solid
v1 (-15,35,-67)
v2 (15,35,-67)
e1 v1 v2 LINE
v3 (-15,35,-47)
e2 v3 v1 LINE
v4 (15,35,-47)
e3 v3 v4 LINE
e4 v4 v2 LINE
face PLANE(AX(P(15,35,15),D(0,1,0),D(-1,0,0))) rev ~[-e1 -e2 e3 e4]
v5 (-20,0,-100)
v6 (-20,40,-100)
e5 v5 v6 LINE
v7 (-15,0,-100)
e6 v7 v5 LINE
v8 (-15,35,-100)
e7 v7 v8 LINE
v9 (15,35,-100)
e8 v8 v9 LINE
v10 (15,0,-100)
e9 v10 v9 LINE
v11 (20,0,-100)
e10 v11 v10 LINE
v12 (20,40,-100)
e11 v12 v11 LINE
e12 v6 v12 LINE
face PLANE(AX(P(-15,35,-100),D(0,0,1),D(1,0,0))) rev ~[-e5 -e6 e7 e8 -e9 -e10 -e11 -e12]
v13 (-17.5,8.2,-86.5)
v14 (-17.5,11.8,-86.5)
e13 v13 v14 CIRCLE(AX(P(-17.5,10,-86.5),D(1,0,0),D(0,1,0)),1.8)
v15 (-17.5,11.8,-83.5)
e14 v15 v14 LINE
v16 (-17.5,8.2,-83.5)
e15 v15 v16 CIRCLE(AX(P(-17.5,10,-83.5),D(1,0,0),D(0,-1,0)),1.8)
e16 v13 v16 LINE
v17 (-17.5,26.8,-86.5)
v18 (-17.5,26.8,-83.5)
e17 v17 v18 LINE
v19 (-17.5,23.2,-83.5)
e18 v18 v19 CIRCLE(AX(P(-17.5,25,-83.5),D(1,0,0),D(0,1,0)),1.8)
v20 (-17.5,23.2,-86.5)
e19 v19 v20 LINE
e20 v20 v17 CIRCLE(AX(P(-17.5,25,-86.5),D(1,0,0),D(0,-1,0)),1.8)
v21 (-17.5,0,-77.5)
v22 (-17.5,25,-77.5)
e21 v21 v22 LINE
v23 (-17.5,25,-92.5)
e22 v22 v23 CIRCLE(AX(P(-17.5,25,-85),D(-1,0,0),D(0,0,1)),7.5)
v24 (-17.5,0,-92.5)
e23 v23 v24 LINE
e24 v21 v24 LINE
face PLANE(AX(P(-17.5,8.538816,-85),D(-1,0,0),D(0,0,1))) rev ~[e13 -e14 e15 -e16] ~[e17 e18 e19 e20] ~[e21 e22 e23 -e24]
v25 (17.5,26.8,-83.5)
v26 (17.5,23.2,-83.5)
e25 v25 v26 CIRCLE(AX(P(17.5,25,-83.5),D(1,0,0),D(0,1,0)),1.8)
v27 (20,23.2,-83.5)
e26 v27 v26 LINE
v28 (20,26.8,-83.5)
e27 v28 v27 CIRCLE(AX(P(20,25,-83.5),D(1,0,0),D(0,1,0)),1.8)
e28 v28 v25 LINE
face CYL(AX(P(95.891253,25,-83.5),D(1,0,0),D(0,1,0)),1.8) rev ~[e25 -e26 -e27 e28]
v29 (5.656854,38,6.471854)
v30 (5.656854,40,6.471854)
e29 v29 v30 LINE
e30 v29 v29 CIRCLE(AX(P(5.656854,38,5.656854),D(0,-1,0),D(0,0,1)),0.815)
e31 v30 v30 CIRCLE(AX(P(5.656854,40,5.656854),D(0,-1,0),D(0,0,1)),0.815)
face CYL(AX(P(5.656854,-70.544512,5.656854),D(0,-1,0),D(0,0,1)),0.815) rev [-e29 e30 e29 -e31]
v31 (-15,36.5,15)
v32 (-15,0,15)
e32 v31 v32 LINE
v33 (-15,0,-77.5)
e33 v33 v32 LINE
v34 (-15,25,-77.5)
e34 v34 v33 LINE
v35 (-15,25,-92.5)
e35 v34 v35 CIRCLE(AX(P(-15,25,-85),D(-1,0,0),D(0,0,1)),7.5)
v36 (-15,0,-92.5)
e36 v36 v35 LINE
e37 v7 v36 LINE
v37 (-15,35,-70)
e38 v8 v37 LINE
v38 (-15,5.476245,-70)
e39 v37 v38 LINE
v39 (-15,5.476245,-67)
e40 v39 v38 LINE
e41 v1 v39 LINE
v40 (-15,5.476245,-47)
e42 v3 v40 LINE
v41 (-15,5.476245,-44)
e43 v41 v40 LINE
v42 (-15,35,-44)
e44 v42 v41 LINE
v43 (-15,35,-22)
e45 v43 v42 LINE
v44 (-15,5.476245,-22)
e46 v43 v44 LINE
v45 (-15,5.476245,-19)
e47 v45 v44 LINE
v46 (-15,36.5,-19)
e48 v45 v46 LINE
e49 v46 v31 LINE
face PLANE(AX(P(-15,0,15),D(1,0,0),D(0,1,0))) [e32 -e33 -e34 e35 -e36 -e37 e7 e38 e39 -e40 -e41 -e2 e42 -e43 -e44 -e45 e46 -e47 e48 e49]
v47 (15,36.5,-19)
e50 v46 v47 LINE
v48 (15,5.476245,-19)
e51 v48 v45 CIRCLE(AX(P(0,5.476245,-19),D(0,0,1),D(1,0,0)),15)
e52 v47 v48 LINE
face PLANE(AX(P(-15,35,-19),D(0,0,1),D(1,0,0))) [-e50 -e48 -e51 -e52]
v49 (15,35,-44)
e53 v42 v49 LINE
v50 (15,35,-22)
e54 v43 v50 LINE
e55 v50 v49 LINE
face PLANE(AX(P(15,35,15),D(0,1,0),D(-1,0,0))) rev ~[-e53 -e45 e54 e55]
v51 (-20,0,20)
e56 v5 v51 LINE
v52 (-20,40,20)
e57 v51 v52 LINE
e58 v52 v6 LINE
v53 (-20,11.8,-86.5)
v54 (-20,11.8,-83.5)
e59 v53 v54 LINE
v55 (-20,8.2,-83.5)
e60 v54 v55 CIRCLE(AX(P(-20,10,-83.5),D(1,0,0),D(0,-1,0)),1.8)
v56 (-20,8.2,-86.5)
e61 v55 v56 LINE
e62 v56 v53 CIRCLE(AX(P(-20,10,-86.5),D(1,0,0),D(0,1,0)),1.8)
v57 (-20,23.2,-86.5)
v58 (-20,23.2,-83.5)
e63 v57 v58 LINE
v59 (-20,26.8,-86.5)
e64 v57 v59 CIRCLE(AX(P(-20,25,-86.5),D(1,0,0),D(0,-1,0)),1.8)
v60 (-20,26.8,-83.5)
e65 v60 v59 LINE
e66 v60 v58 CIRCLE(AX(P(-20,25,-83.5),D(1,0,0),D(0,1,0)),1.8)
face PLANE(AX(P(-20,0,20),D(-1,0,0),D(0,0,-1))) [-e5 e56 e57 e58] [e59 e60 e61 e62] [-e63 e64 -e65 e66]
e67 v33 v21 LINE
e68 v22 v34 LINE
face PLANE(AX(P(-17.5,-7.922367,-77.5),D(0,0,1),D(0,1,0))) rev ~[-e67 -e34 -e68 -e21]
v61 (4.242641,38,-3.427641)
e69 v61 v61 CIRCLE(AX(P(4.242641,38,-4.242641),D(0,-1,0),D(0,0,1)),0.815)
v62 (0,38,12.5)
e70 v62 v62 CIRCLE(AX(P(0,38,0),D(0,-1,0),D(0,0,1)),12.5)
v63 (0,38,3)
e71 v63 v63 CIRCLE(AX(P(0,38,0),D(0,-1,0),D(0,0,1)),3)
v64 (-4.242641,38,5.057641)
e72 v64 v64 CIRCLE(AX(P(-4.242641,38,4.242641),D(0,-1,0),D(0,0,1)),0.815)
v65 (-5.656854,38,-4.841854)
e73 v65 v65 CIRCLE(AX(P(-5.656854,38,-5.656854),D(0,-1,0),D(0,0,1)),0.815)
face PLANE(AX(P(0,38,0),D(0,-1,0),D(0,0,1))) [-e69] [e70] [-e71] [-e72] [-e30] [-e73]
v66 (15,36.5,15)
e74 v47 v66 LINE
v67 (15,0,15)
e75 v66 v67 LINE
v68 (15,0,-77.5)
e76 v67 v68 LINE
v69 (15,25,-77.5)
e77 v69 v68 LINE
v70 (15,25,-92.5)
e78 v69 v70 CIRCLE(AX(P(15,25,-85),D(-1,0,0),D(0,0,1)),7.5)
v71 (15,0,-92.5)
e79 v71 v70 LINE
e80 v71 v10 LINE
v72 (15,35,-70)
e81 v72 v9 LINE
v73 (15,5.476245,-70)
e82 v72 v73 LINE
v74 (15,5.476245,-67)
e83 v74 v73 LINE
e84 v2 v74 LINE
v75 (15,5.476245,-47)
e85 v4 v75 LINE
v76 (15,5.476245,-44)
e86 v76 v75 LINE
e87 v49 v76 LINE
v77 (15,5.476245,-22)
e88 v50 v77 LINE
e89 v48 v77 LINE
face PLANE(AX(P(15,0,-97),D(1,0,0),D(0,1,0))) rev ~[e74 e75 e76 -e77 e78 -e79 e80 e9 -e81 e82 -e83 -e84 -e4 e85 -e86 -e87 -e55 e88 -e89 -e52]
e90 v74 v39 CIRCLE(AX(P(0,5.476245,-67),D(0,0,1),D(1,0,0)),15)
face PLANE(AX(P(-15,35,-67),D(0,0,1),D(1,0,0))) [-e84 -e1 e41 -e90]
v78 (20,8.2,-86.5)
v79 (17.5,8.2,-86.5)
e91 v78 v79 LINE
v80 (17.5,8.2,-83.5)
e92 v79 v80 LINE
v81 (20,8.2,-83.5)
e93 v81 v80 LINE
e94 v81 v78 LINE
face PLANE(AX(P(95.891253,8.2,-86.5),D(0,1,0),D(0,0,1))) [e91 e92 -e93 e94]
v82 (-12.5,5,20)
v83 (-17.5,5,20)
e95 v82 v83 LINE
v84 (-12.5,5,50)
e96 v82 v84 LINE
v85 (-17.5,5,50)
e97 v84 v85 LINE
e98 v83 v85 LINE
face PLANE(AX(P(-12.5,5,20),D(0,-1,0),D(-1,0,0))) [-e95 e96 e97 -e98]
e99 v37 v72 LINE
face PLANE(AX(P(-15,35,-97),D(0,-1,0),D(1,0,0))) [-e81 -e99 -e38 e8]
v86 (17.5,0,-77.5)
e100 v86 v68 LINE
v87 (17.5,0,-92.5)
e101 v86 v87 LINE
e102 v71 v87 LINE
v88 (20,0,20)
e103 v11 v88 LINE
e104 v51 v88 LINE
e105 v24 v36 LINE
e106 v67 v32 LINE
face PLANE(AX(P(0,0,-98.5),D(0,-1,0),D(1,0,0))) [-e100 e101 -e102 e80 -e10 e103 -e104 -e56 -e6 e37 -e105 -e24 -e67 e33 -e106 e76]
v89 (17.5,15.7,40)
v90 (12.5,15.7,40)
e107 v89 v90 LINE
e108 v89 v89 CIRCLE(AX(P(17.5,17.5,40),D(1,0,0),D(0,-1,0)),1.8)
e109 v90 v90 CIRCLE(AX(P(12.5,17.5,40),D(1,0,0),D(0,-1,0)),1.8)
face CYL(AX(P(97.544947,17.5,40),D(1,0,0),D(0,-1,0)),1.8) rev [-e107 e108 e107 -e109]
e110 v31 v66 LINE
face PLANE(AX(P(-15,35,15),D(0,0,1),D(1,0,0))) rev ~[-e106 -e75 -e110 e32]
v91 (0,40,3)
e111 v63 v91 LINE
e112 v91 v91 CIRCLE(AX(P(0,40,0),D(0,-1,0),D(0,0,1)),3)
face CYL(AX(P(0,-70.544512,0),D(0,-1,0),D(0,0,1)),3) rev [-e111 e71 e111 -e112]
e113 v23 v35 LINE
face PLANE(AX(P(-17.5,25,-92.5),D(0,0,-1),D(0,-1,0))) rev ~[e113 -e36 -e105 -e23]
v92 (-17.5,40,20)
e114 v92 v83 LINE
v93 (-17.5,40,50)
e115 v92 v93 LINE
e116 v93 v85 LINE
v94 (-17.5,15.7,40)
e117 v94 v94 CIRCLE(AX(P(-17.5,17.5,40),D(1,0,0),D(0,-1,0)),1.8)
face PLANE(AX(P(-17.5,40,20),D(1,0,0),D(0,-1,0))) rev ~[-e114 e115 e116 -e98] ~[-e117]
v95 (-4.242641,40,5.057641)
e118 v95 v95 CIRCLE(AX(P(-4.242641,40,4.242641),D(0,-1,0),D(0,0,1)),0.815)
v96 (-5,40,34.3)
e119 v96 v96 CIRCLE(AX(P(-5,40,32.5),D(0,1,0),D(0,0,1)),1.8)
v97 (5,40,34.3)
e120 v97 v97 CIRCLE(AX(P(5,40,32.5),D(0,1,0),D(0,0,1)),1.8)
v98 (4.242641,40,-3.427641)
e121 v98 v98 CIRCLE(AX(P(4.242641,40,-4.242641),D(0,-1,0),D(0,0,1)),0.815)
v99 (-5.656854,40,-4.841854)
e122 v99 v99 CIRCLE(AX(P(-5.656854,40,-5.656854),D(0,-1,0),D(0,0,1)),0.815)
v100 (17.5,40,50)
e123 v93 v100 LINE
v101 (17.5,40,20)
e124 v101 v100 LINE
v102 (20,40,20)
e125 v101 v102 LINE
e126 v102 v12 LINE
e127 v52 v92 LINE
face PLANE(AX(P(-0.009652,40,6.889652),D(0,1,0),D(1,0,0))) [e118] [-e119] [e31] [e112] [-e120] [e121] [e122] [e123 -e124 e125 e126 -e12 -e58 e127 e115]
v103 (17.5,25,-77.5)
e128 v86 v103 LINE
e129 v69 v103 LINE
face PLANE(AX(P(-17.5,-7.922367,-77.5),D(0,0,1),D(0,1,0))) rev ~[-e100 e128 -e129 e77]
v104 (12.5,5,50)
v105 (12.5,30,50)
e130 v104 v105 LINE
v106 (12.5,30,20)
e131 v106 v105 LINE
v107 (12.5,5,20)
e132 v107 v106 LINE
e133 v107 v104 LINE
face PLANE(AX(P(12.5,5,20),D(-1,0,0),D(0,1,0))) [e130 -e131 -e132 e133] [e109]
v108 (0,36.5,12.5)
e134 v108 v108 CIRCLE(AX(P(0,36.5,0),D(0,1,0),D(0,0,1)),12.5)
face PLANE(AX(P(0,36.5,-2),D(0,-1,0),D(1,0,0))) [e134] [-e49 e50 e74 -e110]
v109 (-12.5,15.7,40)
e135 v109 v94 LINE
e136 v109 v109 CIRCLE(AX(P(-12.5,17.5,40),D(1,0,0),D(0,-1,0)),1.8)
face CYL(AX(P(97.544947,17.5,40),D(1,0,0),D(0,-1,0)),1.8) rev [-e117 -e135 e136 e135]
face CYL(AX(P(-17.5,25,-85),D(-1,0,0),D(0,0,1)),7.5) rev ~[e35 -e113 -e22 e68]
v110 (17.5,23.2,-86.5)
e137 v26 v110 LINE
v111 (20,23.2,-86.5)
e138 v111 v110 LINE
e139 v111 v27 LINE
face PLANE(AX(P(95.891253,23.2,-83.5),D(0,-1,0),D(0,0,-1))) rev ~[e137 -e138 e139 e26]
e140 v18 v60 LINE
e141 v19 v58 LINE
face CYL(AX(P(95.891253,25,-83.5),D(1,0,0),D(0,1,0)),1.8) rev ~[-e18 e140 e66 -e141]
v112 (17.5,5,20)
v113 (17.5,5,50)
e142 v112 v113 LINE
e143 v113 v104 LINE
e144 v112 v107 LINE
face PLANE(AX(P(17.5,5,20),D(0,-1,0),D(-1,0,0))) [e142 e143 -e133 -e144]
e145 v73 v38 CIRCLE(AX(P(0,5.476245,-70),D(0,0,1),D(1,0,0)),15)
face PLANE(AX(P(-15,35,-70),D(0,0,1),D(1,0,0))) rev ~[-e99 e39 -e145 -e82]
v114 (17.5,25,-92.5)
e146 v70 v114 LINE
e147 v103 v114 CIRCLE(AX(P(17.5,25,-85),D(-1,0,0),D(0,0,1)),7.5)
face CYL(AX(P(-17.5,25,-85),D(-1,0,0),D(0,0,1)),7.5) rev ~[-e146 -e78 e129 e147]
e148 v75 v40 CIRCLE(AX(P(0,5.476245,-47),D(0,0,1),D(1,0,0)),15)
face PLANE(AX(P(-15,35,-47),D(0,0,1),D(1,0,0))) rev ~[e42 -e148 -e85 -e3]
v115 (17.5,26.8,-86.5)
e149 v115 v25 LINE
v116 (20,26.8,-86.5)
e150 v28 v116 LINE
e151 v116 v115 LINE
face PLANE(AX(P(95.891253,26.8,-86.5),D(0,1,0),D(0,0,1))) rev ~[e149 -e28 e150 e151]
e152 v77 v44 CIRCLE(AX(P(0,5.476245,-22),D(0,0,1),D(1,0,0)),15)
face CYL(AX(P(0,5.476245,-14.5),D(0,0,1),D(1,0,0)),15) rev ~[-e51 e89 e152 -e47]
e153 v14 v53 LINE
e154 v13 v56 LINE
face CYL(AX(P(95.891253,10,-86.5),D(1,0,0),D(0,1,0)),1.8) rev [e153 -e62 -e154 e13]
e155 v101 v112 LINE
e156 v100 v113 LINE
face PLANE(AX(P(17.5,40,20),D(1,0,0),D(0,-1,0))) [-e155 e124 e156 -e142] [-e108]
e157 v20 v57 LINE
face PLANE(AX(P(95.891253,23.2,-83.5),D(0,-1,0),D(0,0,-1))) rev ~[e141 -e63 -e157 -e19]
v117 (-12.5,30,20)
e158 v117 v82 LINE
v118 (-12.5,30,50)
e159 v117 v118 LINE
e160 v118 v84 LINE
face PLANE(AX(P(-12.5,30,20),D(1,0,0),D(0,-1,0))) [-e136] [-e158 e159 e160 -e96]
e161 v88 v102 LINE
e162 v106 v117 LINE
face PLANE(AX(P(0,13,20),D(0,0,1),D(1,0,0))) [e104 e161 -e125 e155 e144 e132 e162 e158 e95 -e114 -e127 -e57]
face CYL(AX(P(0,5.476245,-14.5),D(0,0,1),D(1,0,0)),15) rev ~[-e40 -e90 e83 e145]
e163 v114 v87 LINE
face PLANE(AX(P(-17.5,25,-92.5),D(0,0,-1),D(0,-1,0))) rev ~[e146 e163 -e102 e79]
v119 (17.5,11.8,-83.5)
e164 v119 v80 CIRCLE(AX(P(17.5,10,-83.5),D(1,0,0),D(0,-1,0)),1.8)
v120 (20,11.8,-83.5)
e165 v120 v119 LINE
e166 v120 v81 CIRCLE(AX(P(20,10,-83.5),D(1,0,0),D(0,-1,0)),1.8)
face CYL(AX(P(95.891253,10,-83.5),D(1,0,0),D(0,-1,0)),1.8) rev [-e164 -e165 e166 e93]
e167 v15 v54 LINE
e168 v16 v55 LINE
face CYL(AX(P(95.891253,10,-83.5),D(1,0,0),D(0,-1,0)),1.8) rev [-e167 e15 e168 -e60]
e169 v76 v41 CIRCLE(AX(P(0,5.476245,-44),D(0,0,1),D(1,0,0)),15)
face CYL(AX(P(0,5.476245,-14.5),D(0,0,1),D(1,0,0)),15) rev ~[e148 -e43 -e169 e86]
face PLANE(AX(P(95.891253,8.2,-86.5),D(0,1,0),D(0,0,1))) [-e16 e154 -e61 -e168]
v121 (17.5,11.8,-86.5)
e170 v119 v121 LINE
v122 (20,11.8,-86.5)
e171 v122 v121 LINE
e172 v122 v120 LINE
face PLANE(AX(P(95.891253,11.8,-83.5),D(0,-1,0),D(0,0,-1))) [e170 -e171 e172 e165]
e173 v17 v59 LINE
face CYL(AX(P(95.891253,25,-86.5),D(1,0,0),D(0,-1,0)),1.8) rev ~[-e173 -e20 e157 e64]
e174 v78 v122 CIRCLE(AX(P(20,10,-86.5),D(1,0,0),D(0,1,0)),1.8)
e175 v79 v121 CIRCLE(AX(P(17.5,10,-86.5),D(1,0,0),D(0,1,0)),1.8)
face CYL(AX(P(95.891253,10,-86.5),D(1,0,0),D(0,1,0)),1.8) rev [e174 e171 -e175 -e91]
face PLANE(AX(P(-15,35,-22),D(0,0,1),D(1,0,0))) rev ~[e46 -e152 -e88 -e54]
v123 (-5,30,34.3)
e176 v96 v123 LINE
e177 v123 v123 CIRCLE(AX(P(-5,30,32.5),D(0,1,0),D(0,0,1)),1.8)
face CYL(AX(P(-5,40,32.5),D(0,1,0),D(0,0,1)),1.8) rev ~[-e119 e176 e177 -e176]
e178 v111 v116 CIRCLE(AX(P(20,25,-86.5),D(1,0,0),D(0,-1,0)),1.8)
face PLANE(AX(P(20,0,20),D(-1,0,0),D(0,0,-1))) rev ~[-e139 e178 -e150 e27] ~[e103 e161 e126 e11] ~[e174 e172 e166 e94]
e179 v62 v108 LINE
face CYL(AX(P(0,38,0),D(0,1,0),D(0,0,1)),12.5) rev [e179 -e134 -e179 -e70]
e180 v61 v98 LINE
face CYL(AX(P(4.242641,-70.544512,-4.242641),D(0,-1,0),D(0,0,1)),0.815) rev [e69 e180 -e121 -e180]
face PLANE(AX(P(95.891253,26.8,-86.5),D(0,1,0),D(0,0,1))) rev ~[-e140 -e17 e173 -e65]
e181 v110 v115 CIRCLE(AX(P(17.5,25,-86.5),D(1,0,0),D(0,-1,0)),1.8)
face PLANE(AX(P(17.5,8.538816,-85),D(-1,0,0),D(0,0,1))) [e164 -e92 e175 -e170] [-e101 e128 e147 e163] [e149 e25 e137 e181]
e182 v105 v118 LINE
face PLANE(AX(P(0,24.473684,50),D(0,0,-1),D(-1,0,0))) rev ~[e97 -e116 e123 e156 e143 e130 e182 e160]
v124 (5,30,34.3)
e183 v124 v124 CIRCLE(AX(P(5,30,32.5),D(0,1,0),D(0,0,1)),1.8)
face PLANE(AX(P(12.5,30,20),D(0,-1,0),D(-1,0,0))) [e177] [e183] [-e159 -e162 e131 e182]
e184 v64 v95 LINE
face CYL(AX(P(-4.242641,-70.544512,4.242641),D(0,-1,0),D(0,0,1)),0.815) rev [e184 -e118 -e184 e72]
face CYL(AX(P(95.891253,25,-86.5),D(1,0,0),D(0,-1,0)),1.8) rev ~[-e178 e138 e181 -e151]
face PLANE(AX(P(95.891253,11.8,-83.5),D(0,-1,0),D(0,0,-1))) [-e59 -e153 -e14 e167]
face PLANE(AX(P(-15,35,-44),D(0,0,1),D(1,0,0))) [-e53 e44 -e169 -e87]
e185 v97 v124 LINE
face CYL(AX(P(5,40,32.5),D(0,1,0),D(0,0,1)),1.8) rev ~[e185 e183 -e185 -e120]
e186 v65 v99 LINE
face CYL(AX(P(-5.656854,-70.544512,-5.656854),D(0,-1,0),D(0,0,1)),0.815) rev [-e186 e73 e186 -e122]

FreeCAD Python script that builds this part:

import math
import FreeCAD as App
import Part
import Sketcher
from FreeCAD import Vector


def add_polygon(sketch, points):
    """Adds a closed chain of lines whose ends are joined by coincident constraints."""
    first, n = sketch.GeometryCount, len(points)
    for a, b in zip(points, points[1:] + points[:1]):
        sketch.addGeometry(Part.LineSegment(App.Vector(*a, 0), App.Vector(*b, 0)), False)
    for i in range(n):
        sketch.addConstraint(Sketcher.Constraint("Coincident", first + i, 2, first + (i + 1) % n, 1))

doc = App.newDocument("Part")
body = doc.addObject("PartDesign::Body", "Body")

# Sketch on XZ plane
sketch1 = doc.addObject("Sketcher::SketchObject", "Sketch")
body.addObject(sketch1)
sketch1.AttachmentSupport = (doc.XZ_Plane, [""])
sketch1.MapMode = "FlatFace"
add_polygon(sketch1, [(-20, -20), (-20, 20), (20, 20), (20, -20)])  # lines 0-3
sketch1.addGeometry(Part.Circle(Vector(0, 6.9, 0), Vector(0, 0, 1), 2.4), False)  # 4
sketch1.addGeometry(Part.Circle(Vector(-6.9, 0, 0), Vector(0, 0, 1), 2.4), False)  # 5
sketch1.addGeometry(Part.Circle(Vector(6.9, 0, 0), Vector(0, 0, 1), 2.4), False)  # 6
sketch1.addGeometry(Part.Circle(Vector(0, -6.9, 0), Vector(0, 0, 1), 2.4), False)  # 7
sketch1.addConstraint(Sketcher.Constraint("Vertical", 0))
sketch1.addConstraint(Sketcher.Constraint("Horizontal", 1))
sketch1.addConstraint(Sketcher.Constraint("Vertical", 2))
sketch1.addConstraint(Sketcher.Constraint("Horizontal", 3))
sketch1.addConstraint(Sketcher.Constraint("Equal", 4, 5))
sketch1.addConstraint(Sketcher.Constraint("Equal", 5, 6))
sketch1.addConstraint(Sketcher.Constraint("Equal", 6, 7))
sketch1.addConstraint(Sketcher.Constraint("Symmetric", 0, 2, 2, 2, -1, 1))
sketch1.addConstraint(Sketcher.Constraint("Symmetric", 4, 3, 7, 3, -1))
sketch1.addConstraint(Sketcher.Constraint("PointOnObject", 5, 3, -1))
sketch1.addConstraint(Sketcher.Constraint("PointOnObject", 6, 3, -1))
sketch1.addConstraint(Sketcher.Constraint("Equal", 3, 0))
sketch1.addConstraint(Sketcher.Constraint("Diameter", 4, 4.75))
sketch1.addConstraint(Sketcher.Constraint("DistanceX", 1, 1, 1, 2, 40.0))
sketch1.addConstraint(Sketcher.Constraint("DistanceX", -1, 1, 6, 3, 6.88))
sketch1.addConstraint(Sketcher.Constraint("DistanceX", 4, 3, -1, 1, 0.009652))
sketch1.addConstraint(Sketcher.Constraint("DistanceY", -1, 1, 4, 3, 6.889652))
sketch1.addConstraint(Sketcher.Constraint("DistanceX", 5, 3, -1, 1, 6.899304))
pad1 = doc.addObject("PartDesign::Pad", "Pad")
body.addObject(pad1)
pad1.Profile = sketch1
pad1.Length = 40
pad1.Reversed = True

# Sketch on YZ plane
sketch2 = doc.addObject("Sketcher::SketchObject", "Sketch001")
body.addObject(sketch2)
sketch2.AttachmentSupport = (doc.YZ_Plane, [""])
sketch2.MapMode = "FlatFace"
sketch2.AttachmentOffset = App.Placement(Vector(0, 0, -20), App.Rotation())
sketch2.addGeometry(Part.LineSegment(Vector(35, -20, 0), Vector(0, -20, 0)), False)
sketch2.addGeometry(Part.LineSegment(Vector(0, -20, 0), Vector(0, 15, 0)), False)
sketch2.addGeometry(Part.ArcOfCircle(Part.Circle(Vector(0, -20, 0), Vector(0, 0, 1), 35), math.radians(0), math.radians(90)), False)
sketch2.addConstraint(Sketcher.Constraint("Coincident", 0, 2, 1, 1))
sketch2.addConstraint(Sketcher.Constraint("Coincident", 1, 2, 2, 2))
sketch2.addConstraint(Sketcher.Constraint("Coincident", 2, 1, 0, 1))
sketch2.addConstraint(Sketcher.Constraint("Horizontal", 0))
sketch2.addConstraint(Sketcher.Constraint("Vertical", 1))
sketch2.addConstraint(Sketcher.Constraint("Coincident", 0, 2, 2, 3))
sketch2.addConstraint(Sketcher.Constraint("PointOnObject", 2, 3, -2))
sketch2.addConstraint(Sketcher.Constraint("Radius", 2, 35.0))
sketch2.addConstraint(Sketcher.Constraint("DistanceY", 2, 3, -1, 1, 20.0))
pocket1 = doc.addObject("PartDesign::Pocket", "Pocket")
body.addObject(pocket1)
pocket1.Profile = sketch2
pocket1.Type = "ThroughAll"
pocket1.Midplane = True

# Sketch on XZ plane
sketch3 = doc.addObject("Sketcher::SketchObject", "Sketch002")
body.addObject(sketch3)
sketch3.AttachmentSupport = (doc.XZ_Plane, [""])
sketch3.MapMode = "FlatFace"
add_polygon(sketch3, [(-15, 15), (-15, -20), (15, -20), (15, 15)])  # lines 0-3
sketch3.addConstraint(Sketcher.Constraint("Vertical", 0))
sketch3.addConstraint(Sketcher.Constraint("Horizontal", 1))
sketch3.addConstraint(Sketcher.Constraint("Vertical", 2))
sketch3.addConstraint(Sketcher.Constraint("Horizontal", 3))
sketch3.addConstraint(Sketcher.Constraint("DistanceX", 1, 1, 1, 2, 30.0))
sketch3.addConstraint(Sketcher.Constraint("DistanceY", 0, 2, 0, 1, 35.0))
sketch3.addConstraint(Sketcher.Constraint("DistanceX", 0, 2, -1, 1, 15.0))
sketch3.addConstraint(Sketcher.Constraint("DistanceY", 0, 2, -1, 1, 20.0))
pocket2 = doc.addObject("PartDesign::Pocket", "Pocket001")
body.addObject(pocket2)
pocket2.Profile = sketch3
pocket2.Type = "TwoLengths"
pocket2.Length = 49.989795
pocket2.Length2 = 35
pocket2.Reversed = True

# Sketch on XY plane
sketch4 = doc.addObject("Sketcher::SketchObject", "Sketch003")
body.addObject(sketch4)
sketch4.AttachmentSupport = (doc.XY_Plane, [""])
sketch4.MapMode = "FlatFace"
sketch4.AttachmentOffset = App.Placement(Vector(0, 0, 20), App.Rotation())
sketch4.addGeometry(Part.Circle(Vector(0, 13, 0), Vector(0, 0, 1), 3), False)
sketch4.addGeometry(Part.Circle(Vector(-7, 20, 0), Vector(0, 0, 1), 3), False)
sketch4.addGeometry(Part.Circle(Vector(7, 20, 0), Vector(0, 0, 1), 3), False)
sketch4.addConstraint(Sketcher.Constraint("Equal", 0, 1))
sketch4.addConstraint(Sketcher.Constraint("Equal", 1, 2))
sketch4.addConstraint(Sketcher.Constraint("Symmetric", 1, 3, 2, 3, -2))
sketch4.addConstraint(Sketcher.Constraint("PointOnObject", 0, 3, -2))
sketch4.addConstraint(Sketcher.Constraint("Diameter", 0, 6.0))
sketch4.addConstraint(Sketcher.Constraint("DistanceY", -1, 1, 0, 3, 13.0))
sketch4.addConstraint(Sketcher.Constraint("DistanceX", 1, 3, -1, 1, 7.0))
sketch4.addConstraint(Sketcher.Constraint("DistanceY", -1, 1, 1, 3, 20.0))
pocket3 = doc.addObject("PartDesign::Pocket", "Pocket002")
body.addObject(pocket3)
pocket3.Profile = sketch4
pocket3.Type = "ThroughAll"

# Sketch on XY plane
sketch5 = doc.addObject("Sketcher::SketchObject", "Sketch004")
body.addObject(sketch5)
sketch5.AttachmentSupport = (doc.XY_Plane, [""])
sketch5.MapMode = "FlatFace"
sketch5.AttachmentOffset = App.Placement(Vector(0, 0, 20), App.Rotation())
add_polygon(sketch5, [(18, 40), (-18, 40), (-18, 5), (-12, 5), (-12, 30), (12, 30), (12, 5), (18, 5)])  # lines 0-7
sketch5.addConstraint(Sketcher.Constraint("Horizontal", 0))
sketch5.addConstraint(Sketcher.Constraint("Vertical", 1))
sketch5.addConstraint(Sketcher.Constraint("Horizontal", 2))
sketch5.addConstraint(Sketcher.Constraint("Vertical", 3))
sketch5.addConstraint(Sketcher.Constraint("Horizontal", 4))
sketch5.addConstraint(Sketcher.Constraint("Vertical", 5))
sketch5.addConstraint(Sketcher.Constraint("Horizontal", 6))
sketch5.addConstraint(Sketcher.Constraint("Vertical", 7))
sketch5.addConstraint(Sketcher.Constraint("Symmetric", 2, 2, 5, 2, -2))
sketch5.addConstraint(Sketcher.Constraint("Equal", 2, 6))
sketch5.addConstraint(Sketcher.Constraint("Equal", 0, 1))
sketch5.addConstraint(Sketcher.Constraint("Equal", 4, 3))
sketch5.addConstraint(Sketcher.Constraint("DistanceX", 0, 2, 0, 1, 35.0))
sketch5.addConstraint(Sketcher.Constraint("DistanceX", 2, 1, 2, 2, 5.0))
sketch5.addConstraint(Sketcher.Constraint("DistanceY", -1, 1, 0, 2, 40.0))
pad2 = doc.addObject("PartDesign::Pad", "Pad001")
body.addObject(pad2)
pad2.Profile = sketch5
pad2.Length = 30

# Sketch on XZ plane
sketch6 = doc.addObject("Sketcher::SketchObject", "Sketch005")
body.addObject(sketch6)
sketch6.AttachmentSupport = (doc.XZ_Plane, [""])
sketch6.MapMode = "FlatFace"
sketch6.AttachmentOffset = App.Placement(Vector(0, 0, -40), App.Rotation())
sketch6.addGeometry(Part.Circle(Vector(5, 32.5, 0), Vector(0, 0, 1), 1.8), False)
sketch6.addGeometry(Part.Circle(Vector(-5, 32.5, 0), Vector(0, 0, 1), 1.8), False)
sketch6.addConstraint(Sketcher.Constraint("Equal", 0, 1))
sketch6.addConstraint(Sketcher.Constraint("Symmetric", 0, 3, 1, 3, -2))
sketch6.addConstraint(Sketcher.Constraint("Diameter", 0, 3.6))
sketch6.addConstraint(Sketcher.Constraint("DistanceX", -1, 1, 0, 3, 5.0))
sketch6.addConstraint(Sketcher.Constraint("DistanceY", -1, 1, 0, 3, 32.5))
pocket4 = doc.addObject("PartDesign::Pocket", "Pocket003")
body.addObject(pocket4)
pocket4.Profile = sketch6
pocket4.Type = "ThroughAll"
pocket4.Reversed = True

# Sketch on XY plane
sketch7 = doc.addObject("Sketcher::SketchObject", "Sketch006")
body.addObject(sketch7)
sketch7.AttachmentSupport = (doc.XY_Plane, [""])
sketch7.MapMode = "FlatFace"
sketch7.AttachmentOffset = App.Placement(Vector(0, 0, 15), App.Rotation())
add_polygon(sketch7, [(-20, 40), (20, 40), (20, 0), (15, 0), (15, 35), (-15, 35), (-15, 0), (-20, 0)])  # lines 0-7
sketch7.addConstraint(Sketcher.Constraint("Horizontal", 0))
sketch7.addConstraint(Sketcher.Constraint("Vertical", 1))
sketch7.addConstraint(Sketcher.Constraint("Horizontal", 2))
sketch7.addConstraint(Sketcher.Constraint("Vertical", 3))
sketch7.addConstraint(Sketcher.Constraint("Horizontal", 4))
sketch7.addConstraint(Sketcher.Constraint("Vertical", 5))
sketch7.addConstraint(Sketcher.Constraint("Horizontal", 6))
sketch7.addConstraint(Sketcher.Constraint("Vertical", 7))
sketch7.addConstraint(Sketcher.Constraint("Symmetric", 2, 2, 5, 2, -1, 1))
sketch7.addConstraint(Sketcher.Constraint("Symmetric", 1, 2, 6, 2, -2))
sketch7.addConstraint(Sketcher.Constraint("Equal", 0, 1))
sketch7.addConstraint(Sketcher.Constraint("DistanceX", 0, 1, 0, 2, 40.0))
sketch7.addConstraint(Sketcher.Constraint("DistanceX", 2, 2, 2, 1, 5.0))
sketch7.addConstraint(Sketcher.Constraint("DistanceY", 3, 1, 3, 2, 35.0))
pad3 = doc.addObject("PartDesign::Pad", "Pad002")
body.addObject(pad3)
pad3.Profile = sketch7
pad3.Length = 115
pad3.Reversed = True

# Sketch on XZ plane
sketch8 = doc.addObject("Sketcher::SketchObject", "Sketch007")
body.addObject(sketch8)
sketch8.AttachmentSupport = (doc.XZ_Plane, [""])
sketch8.MapMode = "FlatFace"
sketch8.AttachmentOffset = App.Placement(Vector(0, 0, -40), App.Rotation())
sketch8.addGeometry(Part.Circle(Vector(0, 6.9, 0), Vector(0, 0, 1), 2.4), False)
sketch8.addGeometry(Part.Circle(Vector(6.9, 0, 0), Vector(0, 0, 1), 2.4), False)
sketch8.addGeometry(Part.Circle(Vector(0, -6.9, 0), Vector(0, 0, 1), 2.4), False)
sketch8.addGeometry(Part.Circle(Vector(-6.9, 0, 0), Vector(0, 0, 1), 2.4), False)
sketch8.addConstraint(Sketcher.Constraint("Equal", 0, 1))
sketch8.addConstraint(Sketcher.Constraint("Equal", 1, 2))
sketch8.addConstraint(Sketcher.Constraint("Equal", 2, 3))
sketch8.addConstraint(Sketcher.Constraint("Symmetric", 0, 3, 2, 3, -1))
sketch8.addConstraint(Sketcher.Constraint("PointOnObject", 1, 3, -1))
sketch8.addConstraint(Sketcher.Constraint("PointOnObject", 3, 3, -1))
sketch8.addConstraint(Sketcher.Constraint("Diameter", 0, 4.75))
sketch8.addConstraint(Sketcher.Constraint("DistanceX", -1, 1, 1, 3, 6.88))
sketch8.addConstraint(Sketcher.Constraint("DistanceX", 0, 3, -1, 1, 0.009652))
sketch8.addConstraint(Sketcher.Constraint("DistanceY", -1, 1, 0, 3, 6.889652))
sketch8.addConstraint(Sketcher.Constraint("DistanceX", 3, 3, -1, 1, 6.899304))
pocket5 = doc.addObject("PartDesign::Pocket", "Pocket004")
body.addObject(pocket5)
pocket5.Profile = sketch8
pocket5.Length = 70
pocket5.Reversed = True

# Sketch on YZ plane
sketch9 = doc.addObject("Sketcher::SketchObject", "Sketch008")
body.addObject(sketch9)
sketch9.AttachmentSupport = (doc.YZ_Plane, [""])
sketch9.MapMode = "FlatFace"
sketch9.AttachmentOffset = App.Placement(Vector(0, 0, -20), App.Rotation())
sketch9.addGeometry(Part.LineSegment(Vector(26.8, -83.5, 0), Vector(26.8, -86.5, 0)), False)
sketch9.addGeometry(Part.ArcOfCircle(Part.Circle(Vector(25, -86.5, 0), Vector(0, 0, 1), 1.8), math.radians(180), math.radians(360)), False)
sketch9.addGeometry(Part.LineSegment(Vector(23.2, -86.5, 0), Vector(23.2, -83.5, 0)), False)
sketch9.addGeometry(Part.ArcOfCircle(Part.Circle(Vector(25, -83.5, 0), Vector(0, 0, 1), 1.8), math.radians(0), math.radians(180)), False)
sketch9.addGeometry(Part.LineSegment(Vector(8.2, -86.5, 0), Vector(8.2, -83.5, 0)), False)
sketch9.addGeometry(Part.ArcOfCircle(Part.Circle(Vector(10, -83.5, 0), Vector(0, 0, 1), 1.8), math.radians(0), math.radians(180)), False)
sketch9.addGeometry(Part.LineSegment(Vector(11.8, -83.5, 0), Vector(11.8, -86.5, 0)), False)
sketch9.addGeometry(Part.ArcOfCircle(Part.Circle(Vector(10, -86.5, 0), Vector(0, 0, 1), 1.8), math.radians(180), math.radians(360)), False)
sketch9.addConstraint(Sketcher.Constraint("Tangent", 0, 2, 1, 2))
sketch9.addConstraint(Sketcher.Constraint("Tangent", 1, 1, 2, 1))
sketch9.addConstraint(Sketcher.Constraint("Tangent", 2, 2, 3, 2))
sketch9.addConstraint(Sketcher.Constraint("Tangent", 3, 1, 0, 1))
sketch9.addConstraint(Sketcher.Constraint("Tangent", 4, 2, 5, 2))
sketch9.addConstraint(Sketcher.Constraint("Tangent", 5, 1, 6, 1))
sketch9.addConstraint(Sketcher.Constraint("Tangent", 6, 2, 7, 2))
sketch9.addConstraint(Sketcher.Constraint("Tangent", 7, 1, 4, 1))
sketch9.addConstraint(Sketcher.Constraint("Vertical", 0))
sketch9.addConstraint(Sketcher.Constraint("Vertical", 2))
sketch9.addConstraint(Sketcher.Constraint("Vertical", 4))
sketch9.addConstraint(Sketcher.Constraint("Vertical", 6))
sketch9.addConstraint(Sketcher.Constraint("Equal", 3, 5))
sketch9.addConstraint(Sketcher.Constraint("Horizontal", 3, 3, 5, 3))
sketch9.addConstraint(Sketcher.Constraint("Horizontal", 1, 3, 7, 3))
sketch9.addConstraint(Sketcher.Constraint("Radius", 1, 1.8))
sketch9.addConstraint(Sketcher.Constraint("DistanceY", 0, 2, 0, 1, 3.0))
sketch9.addConstraint(Sketcher.Constraint("DistanceX", -1, 1, 1, 3, 25.0))
sketch9.addConstraint(Sketcher.Constraint("DistanceX", -1, 1, 5, 3, 10.0))
sketch9.addConstraint(Sketcher.Constraint("DistanceY", 1, 3, -1, 1, 86.5))
pocket6 = doc.addObject("PartDesign::Pocket", "Pocket005")
body.addObject(pocket6)
pocket6.Profile = sketch9
pocket6.Type = "ThroughAll"
pocket6.Midplane = True

# Sketch on XZ plane
sketch10 = doc.addObject("Sketcher::SketchObject", "Sketch009")
body.addObject(sketch10)
sketch10.AttachmentSupport = (doc.XZ_Plane, [""])
sketch10.MapMode = "FlatFace"
sketch10.AttachmentOffset = App.Placement(Vector(0, 0, -35), App.Rotation())
add_polygon(sketch10, [(-15, -97), (-15, -100), (15, -100), (15, -97)])  # lines 0-3
add_polygon(sketch10, [(-15, -44), (-15, -47), (15, -47), (15, -44)])  # lines 4-7
add_polygon(sketch10, [(-15, -19), (-15, -22), (15, -22), (15, -19)])  # lines 8-11
add_polygon(sketch10, [(-15, -67), (-15, -70), (15, -70), (15, -67)])  # lines 12-15
sketch10.addConstraint(Sketcher.Constraint("Vertical", 0))
sketch10.addConstraint(Sketcher.Constraint("Horizontal", 1))
sketch10.addConstraint(Sketcher.Constraint("Vertical", 2))
sketch10.addConstraint(Sketcher.Constraint("Horizontal", 3))
sketch10.addConstraint(Sketcher.Constraint("Vertical", 4))
sketch10.addConstraint(Sketcher.Constraint("Horizontal", 5))
sketch10.addConstraint(Sketcher.Constraint("Vertical", 6))
sketch10.addConstraint(Sketcher.Constraint("Horizontal", 7))
sketch10.addConstraint(Sketcher.Constraint("Vertical", 8))
sketch10.addConstraint(Sketcher.Constraint("Horizontal", 9))
sketch10.addConstraint(Sketcher.Constraint("Vertical", 10))
sketch10.addConstraint(Sketcher.Constraint("Horizontal", 11))
sketch10.addConstraint(Sketcher.Constraint("Vertical", 12))
sketch10.addConstraint(Sketcher.Constraint("Horizontal", 13))
sketch10.addConstraint(Sketcher.Constraint("Vertical", 14))
sketch10.addConstraint(Sketcher.Constraint("Horizontal", 15))
sketch10.addConstraint(Sketcher.Constraint("Vertical", 3, 2, 4, 2))
sketch10.addConstraint(Sketcher.Constraint("Vertical", 2, 2, 5, 2))
sketch10.addConstraint(Sketcher.Constraint("Vertical", 7, 2, 8, 2))
sketch10.addConstraint(Sketcher.Constraint("Vertical", 6, 2, 9, 2))
sketch10.addConstraint(Sketcher.Constraint("Vertical", 11, 2, 12, 2))
sketch10.addConstraint(Sketcher.Constraint("Vertical", 10, 2, 13, 2))
sketch10.addConstraint(Sketcher.Constraint("Equal", 2, 4))
sketch10.addConstraint(Sketcher.Constraint("Equal", 6, 8))
sketch10.addConstraint(Sketcher.Constraint("Equal", 10, 12))
sketch10.addConstraint(Sketcher.Constraint("DistanceX", 1, 1, 1, 2, 30.0))
sketch10.addConstraint(Sketcher.Constraint("DistanceY", 0, 2, 0, 1, 3.0))
sketch10.addConstraint(Sketcher.Constraint("DistanceX", 0, 2, -1, 1, 15.0))
sketch10.addConstraint(Sketcher.Constraint("DistanceY", 0, 2, -1, 1, 100.0))
sketch10.addConstraint(Sketcher.Constraint("DistanceY", 4, 2, -1, 1, 47.0))
sketch10.addConstraint(Sketcher.Constraint("DistanceY", 8, 2, -1, 1, 22.0))
sketch10.addConstraint(Sketcher.Constraint("DistanceY", 12, 2, -1, 1, 70.0))
pad4 = doc.addObject("PartDesign::Pad", "Pad003")
body.addObject(pad4)
pad4.Profile = sketch10
pad4.Length = 35

# Sketch on XZ plane
sketch11 = doc.addObject("Sketcher::SketchObject", "Sketch010")
body.addObject(sketch11)
sketch11.AttachmentSupport = (doc.XZ_Plane, [""])
sketch11.MapMode = "FlatFace"
sketch11.AttachmentOffset = App.Placement(Vector(0, 0, -35), App.Rotation())
add_polygon(sketch11, [(-15, 15), (-15, -19), (15, -19), (15, 15)])  # lines 0-3
sketch11.addConstraint(Sketcher.Constraint("Vertical", 0))
sketch11.addConstraint(Sketcher.Constraint("Horizontal", 1))
sketch11.addConstraint(Sketcher.Constraint("Vertical", 2))
sketch11.addConstraint(Sketcher.Constraint("Horizontal", 3))
sketch11.addConstraint(Sketcher.Constraint("DistanceX", 1, 1, 1, 2, 30.0))
sketch11.addConstraint(Sketcher.Constraint("DistanceY", 0, 2, 0, 1, 34.0))
sketch11.addConstraint(Sketcher.Constraint("DistanceX", 0, 2, -1, 1, 15.0))
sketch11.addConstraint(Sketcher.Constraint("DistanceY", 0, 2, -1, 1, 19.0))
pocket7 = doc.addObject("PartDesign::Pocket", "Pocket006")
body.addObject(pocket7)
pocket7.Profile = sketch11
pocket7.Type = "TwoLengths"
pocket7.Length = 108.819293
pocket7.Length2 = 1.5
pocket7.Reversed = True

# Sketch on XY plane
sketch12 = doc.addObject("Sketcher::SketchObject", "Sketch011")
body.addObject(sketch12)
sketch12.AttachmentSupport = (doc.XY_Plane, [""])
sketch12.MapMode = "FlatFace"
sketch12.AttachmentOffset = App.Placement(Vector(0, 0, -47), App.Rotation())
sketch12.addGeometry(Part.LineSegment(Vector(15, 5, 0), Vector(15, -9, 0)), False)
sketch12.addGeometry(Part.ArcOfCircle(Part.Circle(Vector(0, -9, 0), Vector(0, 0, 1), 15), math.radians(180), math.radians(360)), False)
sketch12.addGeometry(Part.LineSegment(Vector(-15, -9, 0), Vector(-15, 5, 0)), False)
sketch12.addGeometry(Part.ArcOfCircle(Part.Circle(Vector(0, 5, 0), Vector(0, 0, 1), 15), math.radians(0), math.radians(180)), False)
sketch12.addConstraint(Sketcher.Constraint("Tangent", 0, 2, 1, 2))
sketch12.addConstraint(Sketcher.Constraint("Tangent", 1, 1, 2, 1))
sketch12.addConstraint(Sketcher.Constraint("Tangent", 2, 2, 3, 2))
sketch12.addConstraint(Sketcher.Constraint("Tangent", 3, 1, 0, 1))
sketch12.addConstraint(Sketcher.Constraint("Vertical", 0))
sketch12.addConstraint(Sketcher.Constraint("Vertical", 2))
sketch12.addConstraint(Sketcher.Constraint("PointOnObject", 1, 3, -2))
sketch12.addConstraint(Sketcher.Constraint("Radius", 1, 15.0))
sketch12.addConstraint(Sketcher.Constraint("DistanceY", 0, 2, 0, 1, 14.0))
sketch12.addConstraint(Sketcher.Constraint("DistanceY", 1, 3, -1, 1, 8.523755))
pocket8 = doc.addObject("PartDesign::Pocket", "Pocket007")
body.addObject(pocket8)
pocket8.Profile = sketch12
pocket8.Type = "TwoLengths"
pocket8.Length = 32
pocket8.Length2 = 32.5

# Sketch on YZ plane
sketch13 = doc.addObject("Sketcher::SketchObject", "Sketch012")
body.addObject(sketch13)
sketch13.AttachmentSupport = (doc.YZ_Plane, [""])
sketch13.MapMode = "FlatFace"
sketch13.AttachmentOffset = App.Placement(Vector(0, 0, -17.5), App.Rotation())
sketch13.addGeometry(Part.Circle(Vector(17.5, 40, 0), Vector(0, 0, 1), 1.8), False)
sketch13.addConstraint(Sketcher.Constraint("Diameter", 0, 3.6))
sketch13.addConstraint(Sketcher.Constraint("DistanceY", -1, 1, 0, 3, 40.0))
sketch13.addConstraint(Sketcher.Constraint("DistanceX", -1, 1, 0, 3, 17.5))
pocket9 = doc.addObject("PartDesign::Pocket", "Pocket008")
body.addObject(pocket9)
pocket9.Profile = sketch13
pocket9.Type = "ThroughAll"
pocket9.Midplane = True

# Sketch on XY plane
sketch14 = doc.addObject("Sketcher::SketchObject", "Sketch013")
body.addObject(sketch14)
sketch14.AttachmentSupport = (doc.XY_Plane, [""])
sketch14.MapMode = "FlatFace"
sketch14.AttachmentOffset = App.Placement(Vector(0, 0, 20), App.Rotation())
sketch14.addGeometry(Part.Circle(Vector(0, 13, 0), Vector(0, 0, 1), 3), False)
sketch14.addGeometry(Part.Circle(Vector(-7, 20, 0), Vector(0, 0, 1), 3), False)
sketch14.addGeometry(Part.Circle(Vector(7, 20, 0), Vector(0, 0, 1), 3), False)
sketch14.addConstraint(Sketcher.Constraint("Equal", 0, 1))
sketch14.addConstraint(Sketcher.Constraint("Equal", 1, 2))
sketch14.addConstraint(Sketcher.Constraint("Symmetric", 1, 3, 2, 3, -2))
sketch14.addConstraint(Sketcher.Constraint("PointOnObject", 0, 3, -2))
sketch14.addConstraint(Sketcher.Constraint("Diameter", 0, 6.0))
sketch14.addConstraint(Sketcher.Constraint("DistanceY", -1, 1, 0, 3, 13.0))
sketch14.addConstraint(Sketcher.Constraint("DistanceX", 1, 3, -1, 1, 7.0))
sketch14.addConstraint(Sketcher.Constraint("DistanceY", -1, 1, 1, 3, 20.0))
pad5 = doc.addObject("PartDesign::Pad", "Pad004")
body.addObject(pad5)
pad5.Profile = sketch14
pad5.Length = 5
pad5.Reversed = True

# Sketch on XY plane
sketch15 = doc.addObject("Sketcher::SketchObject", "Sketch014")
body.addObject(sketch15)
sketch15.AttachmentSupport = (doc.XY_Plane, [""])
sketch15.MapMode = "FlatFace"
sketch15.AttachmentOffset = App.Placement(Vector(0, 0, -97), App.Rotation())
add_polygon(sketch15, [(-15, 35), (-15, 0), (15, 0), (15, 35)])  # lines 0-3
sketch15.addConstraint(Sketcher.Constraint("Vertical", 0))
sketch15.addConstraint(Sketcher.Constraint("Horizontal", 1))
sketch15.addConstraint(Sketcher.Constraint("Vertical", 2))
sketch15.addConstraint(Sketcher.Constraint("Horizontal", 3))
sketch15.addConstraint(Sketcher.Constraint("Symmetric", 0, 2, 1, 2, -1, 1))
sketch15.addConstraint(Sketcher.Constraint("DistanceX", 1, 1, 1, 2, 30.0))
sketch15.addConstraint(Sketcher.Constraint("DistanceY", 0, 2, 0, 1, 35.0))
pocket10 = doc.addObject("PartDesign::Pocket", "Pocket009")
body.addObject(pocket10)
pocket10.Profile = sketch15
pocket10.Length = 10

# Sketch on XZ plane
sketch16 = doc.addObject("Sketcher::SketchObject", "Sketch015")
body.addObject(sketch16)
sketch16.AttachmentSupport = (doc.XZ_Plane, [""])
sketch16.MapMode = "FlatFace"
sketch16.AttachmentOffset = App.Placement(Vector(0, 0, -40), App.Rotation())
sketch16.addGeometry(Part.Circle(Vector(0, 0, 0), Vector(0, 0, 1), 3), False)
sketch16.addConstraint(Sketcher.Constraint("Coincident", 0, 3, -1, 1))
sketch16.addConstraint(Sketcher.Constraint("Diameter", 0, 6.0))
pocket11 = doc.addObject("PartDesign::Pocket", "Pocket010")
body.addObject(pocket11)
pocket11.Profile = sketch16
pocket11.Type = "ThroughAll"
pocket11.Midplane = True

# Sketch on XZ plane
sketch17 = doc.addObject("Sketcher::SketchObject", "Sketch016")
body.addObject(sketch17)
sketch17.AttachmentSupport = (doc.XZ_Plane, [""])
sketch17.MapMode = "FlatFace"
sketch17.AttachmentOffset = App.Placement(Vector(0, 0, -40), App.Rotation())
sketch17.addGeometry(Part.Circle(Vector(0, 6.9, 0), Vector(0, 0, 1), 2.4), False)
sketch17.addGeometry(Part.Circle(Vector(6.9, 0, 0), Vector(0, 0, 1), 2.4), False)
sketch17.addGeometry(Part.Circle(Vector(0, -6.9, 0), Vector(0, 0, 1), 2.4), False)
sketch17.addGeometry(Part.Circle(Vector(-6.9, 0, 0), Vector(0, 0, 1), 2.4), False)
sketch17.addConstraint(Sketcher.Constraint("Equal", 0, 1))
sketch17.addConstraint(Sketcher.Constraint("Equal", 1, 2))
sketch17.addConstraint(Sketcher.Constraint("Equal", 2, 3))
sketch17.addConstraint(Sketcher.Constraint("Symmetric", 0, 3, 2, 3, -1))
sketch17.addConstraint(Sketcher.Constraint("PointOnObject", 1, 3, -1))
sketch17.addConstraint(Sketcher.Constraint("PointOnObject", 3, 3, -1))
sketch17.addConstraint(Sketcher.Constraint("Diameter", 0, 4.75))
sketch17.addConstraint(Sketcher.Constraint("DistanceX", -1, 1, 1, 3, 6.88))
sketch17.addConstraint(Sketcher.Constraint("DistanceX", 0, 3, -1, 1, 0.009652))
sketch17.addConstraint(Sketcher.Constraint("DistanceY", -1, 1, 0, 3, 6.889652))
sketch17.addConstraint(Sketcher.Constraint("DistanceX", 3, 3, -1, 1, 6.899304))
pad6 = doc.addObject("PartDesign::Pad", "Pad005")
body.addObject(pad6)
pad6.Profile = sketch17
pad6.Length = 3.5

# Sketch on XZ plane
sketch18 = doc.addObject("Sketcher::SketchObject", "Sketch017")
body.addObject(sketch18)
sketch18.AttachmentSupport = (doc.XZ_Plane, [""])
sketch18.MapMode = "FlatFace"
sketch18.AttachmentOffset = App.Placement(Vector(0, 0, -40), App.Rotation())
sketch18.addGeometry(Part.Circle(Vector(-5.7, -5.7, 0), Vector(0, 0, 1), 0.8), False)
sketch18.addGeometry(Part.Circle(Vector(4.2, -4.2, 0), Vector(0, 0, 1), 0.8), False)
sketch18.addGeometry(Part.Circle(Vector(5.7, 5.7, 0), Vector(0, 0, 1), 0.8), False)
sketch18.addGeometry(Part.Circle(Vector(-4.2, 4.2, 0), Vector(0, 0, 1), 0.8), False)
sketch18.addConstraint(Sketcher.Constraint("Equal", 0, 1))
sketch18.addConstraint(Sketcher.Constraint("Equal", 1, 2))
sketch18.addConstraint(Sketcher.Constraint("Equal", 2, 3))
sketch18.addConstraint(Sketcher.Constraint("Symmetric", 0, 3, 2, 3, -1, 1))
sketch18.addConstraint(Sketcher.Constraint("Symmetric", 1, 3, 3, 3, -1, 1))
sketch18.addConstraint(Sketcher.Constraint("Diameter", 0, 1.63))
sketch18.addConstraint(Sketcher.Constraint("DistanceX", -1, 1, 1, 3, 4.242641))
sketch18.addConstraint(Sketcher.Constraint("DistanceY", 1, 3, -1, 1, 4.242641))
sketch18.addConstraint(Sketcher.Constraint("DistanceX", 0, 3, 2, 3, 11.313708))
sketch18.addConstraint(Sketcher.Constraint("DistanceY", 0, 3, 2, 3, 11.313708))
pocket12 = doc.addObject("PartDesign::Pocket", "Pocket011")
body.addObject(pocket12)
pocket12.Profile = sketch18
pocket12.Type = "ThroughAll"
pocket12.Midplane = True

# Sketch on XZ plane
sketch19 = doc.addObject("Sketcher::SketchObject", "Sketch018")
body.addObject(sketch19)
sketch19.AttachmentSupport = (doc.XZ_Plane, [""])
sketch19.MapMode = "FlatFace"
sketch19.AttachmentOffset = App.Placement(Vector(0, 0, -36.5), App.Rotation())
sketch19.addGeometry(Part.Circle(Vector(0, 0, 0), Vector(0, 0, 1), 12), False)
sketch19.addConstraint(Sketcher.Constraint("Coincident", 0, 3, -1, 1))
sketch19.addConstraint(Sketcher.Constraint("Diameter", 0, 25.0))
pocket13 = doc.addObject("PartDesign::Pocket", "Pocket012")
body.addObject(pocket13)
pocket13.Profile = sketch19
pocket13.Type = "TwoLengths"
pocket13.Length = 109.315511
pocket13.Length2 = 1.5
pocket13.Reversed = True

# Sketch on YZ plane
sketch20 = doc.addObject("Sketcher::SketchObject", "Sketch019")
body.addObject(sketch20)
sketch20.AttachmentSupport = (doc.YZ_Plane, [""])
sketch20.MapMode = "FlatFace"
sketch20.addGeometry(Part.LineSegment(Vector(-8, -92, 0), Vector(25, -92, 0)), False)
sketch20.addGeometry(Part.ArcOfCircle(Part.Circle(Vector(25, -85, 0), Vector(0, 0, 1), 8), math.radians(-90), math.radians(90)), False)
sketch20.addGeometry(Part.LineSegment(Vector(25, -78, 0), Vector(-8, -78, 0)), False)
sketch20.addGeometry(Part.ArcOfCircle(Part.Circle(Vector(-8, -85, 0), Vector(0, 0, 1), 8), math.radians(90), math.radians(270)), False)
sketch20.addConstraint(Sketcher.Constraint("Tangent", 0, 2, 1, 1))
sketch20.addConstraint(Sketcher.Constraint("Tangent", 1, 2, 2, 1))
sketch20.addConstraint(Sketcher.Constraint("Tangent", 2, 2, 3, 1))
sketch20.addConstraint(Sketcher.Constraint("Tangent", 3, 2, 0, 1))
sketch20.addConstraint(Sketcher.Constraint("Horizontal", 0))
sketch20.addConstraint(Sketcher.Constraint("Horizontal", 2))
sketch20.addConstraint(Sketcher.Constraint("Radius", 1, 7.5))
sketch20.addConstraint(Sketcher.Constraint("DistanceX", -1, 1, 1, 3, 25.0))
sketch20.addConstraint(Sketcher.Constraint("DistanceY", 1, 3, -1, 1, 85.0))
sketch20.addConstraint(Sketcher.Constraint("DistanceX", 0, 1, 0, 2, 32.922367))
pocket14 = doc.addObject("PartDesign::Pocket", "Pocket013")
body.addObject(pocket14)
pocket14.Profile = sketch20
pocket14.Type = "TwoLengths"
pocket14.Length = 17.5
pocket14.Length2 = 17.5
pocket14.Reversed = True

doc.recompute()
